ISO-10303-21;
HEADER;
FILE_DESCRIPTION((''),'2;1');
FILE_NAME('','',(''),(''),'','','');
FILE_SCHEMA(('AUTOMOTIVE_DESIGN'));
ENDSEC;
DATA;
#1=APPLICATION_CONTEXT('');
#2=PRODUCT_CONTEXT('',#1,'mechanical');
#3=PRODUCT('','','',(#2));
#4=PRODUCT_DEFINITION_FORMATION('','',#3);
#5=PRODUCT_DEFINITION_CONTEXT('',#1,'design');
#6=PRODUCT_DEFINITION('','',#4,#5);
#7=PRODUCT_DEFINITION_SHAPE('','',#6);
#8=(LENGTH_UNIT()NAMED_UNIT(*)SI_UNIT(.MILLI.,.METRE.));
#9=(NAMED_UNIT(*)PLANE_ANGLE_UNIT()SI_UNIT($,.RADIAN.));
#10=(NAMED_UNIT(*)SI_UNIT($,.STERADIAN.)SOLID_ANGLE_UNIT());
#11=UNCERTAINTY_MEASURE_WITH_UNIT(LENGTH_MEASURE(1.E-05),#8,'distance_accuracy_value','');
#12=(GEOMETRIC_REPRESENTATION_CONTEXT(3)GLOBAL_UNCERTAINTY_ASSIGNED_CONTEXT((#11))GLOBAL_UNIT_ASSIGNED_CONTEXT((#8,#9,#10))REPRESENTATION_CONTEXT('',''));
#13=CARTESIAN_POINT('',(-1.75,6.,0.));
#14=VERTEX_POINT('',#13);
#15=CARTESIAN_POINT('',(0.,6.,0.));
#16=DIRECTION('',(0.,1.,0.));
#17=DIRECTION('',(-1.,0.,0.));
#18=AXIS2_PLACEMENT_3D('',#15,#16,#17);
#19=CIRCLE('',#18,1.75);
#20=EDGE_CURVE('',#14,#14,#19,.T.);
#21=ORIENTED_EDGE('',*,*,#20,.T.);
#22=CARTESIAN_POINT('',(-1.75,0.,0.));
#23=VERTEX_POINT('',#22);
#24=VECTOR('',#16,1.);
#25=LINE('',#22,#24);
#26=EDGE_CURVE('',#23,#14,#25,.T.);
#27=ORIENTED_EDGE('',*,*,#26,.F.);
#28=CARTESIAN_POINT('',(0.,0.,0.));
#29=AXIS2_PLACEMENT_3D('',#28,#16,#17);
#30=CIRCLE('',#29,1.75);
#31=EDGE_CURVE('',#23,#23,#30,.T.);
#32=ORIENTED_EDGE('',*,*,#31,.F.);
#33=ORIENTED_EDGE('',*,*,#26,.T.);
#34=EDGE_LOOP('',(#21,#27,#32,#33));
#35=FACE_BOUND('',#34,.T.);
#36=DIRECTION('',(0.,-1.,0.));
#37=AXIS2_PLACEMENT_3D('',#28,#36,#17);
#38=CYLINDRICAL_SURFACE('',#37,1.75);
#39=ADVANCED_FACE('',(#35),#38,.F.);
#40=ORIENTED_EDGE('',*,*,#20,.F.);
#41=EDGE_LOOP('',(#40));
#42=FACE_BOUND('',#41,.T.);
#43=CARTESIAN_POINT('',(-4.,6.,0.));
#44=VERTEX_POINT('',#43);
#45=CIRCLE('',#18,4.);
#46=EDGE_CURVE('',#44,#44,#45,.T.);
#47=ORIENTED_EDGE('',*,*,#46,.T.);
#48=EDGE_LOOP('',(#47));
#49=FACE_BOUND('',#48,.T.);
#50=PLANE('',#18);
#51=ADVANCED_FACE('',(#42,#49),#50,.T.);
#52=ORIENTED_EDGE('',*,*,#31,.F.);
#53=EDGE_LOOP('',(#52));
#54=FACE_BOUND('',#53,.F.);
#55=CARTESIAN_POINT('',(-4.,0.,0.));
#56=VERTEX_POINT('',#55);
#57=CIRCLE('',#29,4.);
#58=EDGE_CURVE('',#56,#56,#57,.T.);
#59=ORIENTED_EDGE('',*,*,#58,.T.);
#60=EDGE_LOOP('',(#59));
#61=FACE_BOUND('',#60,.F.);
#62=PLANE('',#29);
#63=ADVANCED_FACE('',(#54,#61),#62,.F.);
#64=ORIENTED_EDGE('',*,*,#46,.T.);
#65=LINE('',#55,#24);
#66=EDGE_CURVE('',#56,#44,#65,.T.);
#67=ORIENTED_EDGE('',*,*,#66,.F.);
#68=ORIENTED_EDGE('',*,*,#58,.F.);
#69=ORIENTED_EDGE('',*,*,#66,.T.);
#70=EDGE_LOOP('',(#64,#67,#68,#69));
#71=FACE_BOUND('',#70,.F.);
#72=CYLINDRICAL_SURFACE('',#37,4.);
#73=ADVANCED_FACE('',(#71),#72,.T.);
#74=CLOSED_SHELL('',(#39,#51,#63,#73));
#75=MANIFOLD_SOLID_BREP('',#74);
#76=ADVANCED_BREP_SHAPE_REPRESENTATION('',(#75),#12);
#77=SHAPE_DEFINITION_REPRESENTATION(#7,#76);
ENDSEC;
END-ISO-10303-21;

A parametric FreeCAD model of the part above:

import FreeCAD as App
import Part
import Sketcher

V = App.Vector
Q = App.Units.Quantity

doc = App.newDocument("Part")
body = doc.addObject("PartDesign::Body", "Body")

# Sketch on XZ plane
sketch1 = body.newObject("Sketcher::SketchObject", "Sketch")
sketch1.AttachmentSupport = (doc.getObject("XZ_Plane"), [""])
sketch1.MapMode = "FlatFace"
sketch1.addGeometry([
    Part.Circle(V(0, 0, 0), V(0, 0, 1), 4),
    Part.Circle(V(0, 0, 0), V(0, 0, 1), 1.8),
], False)
sketch1.addConstraint([
    Sketcher.Constraint("Coincident", 0, 3, -1, 1),
    Sketcher.Constraint("Coincident", 1, 3, -1, 1),
    Sketcher.Constraint("Diameter", 0, Q("8 mm")),
    Sketcher.Constraint("Diameter", 1, Q("3.5 mm")),
])
pad1 = body.newObject("PartDesign::Pad", "Pad")
pad1.Profile = sketch1
pad1.Length = 6
pad1.Reversed = True

doc.recompute()
